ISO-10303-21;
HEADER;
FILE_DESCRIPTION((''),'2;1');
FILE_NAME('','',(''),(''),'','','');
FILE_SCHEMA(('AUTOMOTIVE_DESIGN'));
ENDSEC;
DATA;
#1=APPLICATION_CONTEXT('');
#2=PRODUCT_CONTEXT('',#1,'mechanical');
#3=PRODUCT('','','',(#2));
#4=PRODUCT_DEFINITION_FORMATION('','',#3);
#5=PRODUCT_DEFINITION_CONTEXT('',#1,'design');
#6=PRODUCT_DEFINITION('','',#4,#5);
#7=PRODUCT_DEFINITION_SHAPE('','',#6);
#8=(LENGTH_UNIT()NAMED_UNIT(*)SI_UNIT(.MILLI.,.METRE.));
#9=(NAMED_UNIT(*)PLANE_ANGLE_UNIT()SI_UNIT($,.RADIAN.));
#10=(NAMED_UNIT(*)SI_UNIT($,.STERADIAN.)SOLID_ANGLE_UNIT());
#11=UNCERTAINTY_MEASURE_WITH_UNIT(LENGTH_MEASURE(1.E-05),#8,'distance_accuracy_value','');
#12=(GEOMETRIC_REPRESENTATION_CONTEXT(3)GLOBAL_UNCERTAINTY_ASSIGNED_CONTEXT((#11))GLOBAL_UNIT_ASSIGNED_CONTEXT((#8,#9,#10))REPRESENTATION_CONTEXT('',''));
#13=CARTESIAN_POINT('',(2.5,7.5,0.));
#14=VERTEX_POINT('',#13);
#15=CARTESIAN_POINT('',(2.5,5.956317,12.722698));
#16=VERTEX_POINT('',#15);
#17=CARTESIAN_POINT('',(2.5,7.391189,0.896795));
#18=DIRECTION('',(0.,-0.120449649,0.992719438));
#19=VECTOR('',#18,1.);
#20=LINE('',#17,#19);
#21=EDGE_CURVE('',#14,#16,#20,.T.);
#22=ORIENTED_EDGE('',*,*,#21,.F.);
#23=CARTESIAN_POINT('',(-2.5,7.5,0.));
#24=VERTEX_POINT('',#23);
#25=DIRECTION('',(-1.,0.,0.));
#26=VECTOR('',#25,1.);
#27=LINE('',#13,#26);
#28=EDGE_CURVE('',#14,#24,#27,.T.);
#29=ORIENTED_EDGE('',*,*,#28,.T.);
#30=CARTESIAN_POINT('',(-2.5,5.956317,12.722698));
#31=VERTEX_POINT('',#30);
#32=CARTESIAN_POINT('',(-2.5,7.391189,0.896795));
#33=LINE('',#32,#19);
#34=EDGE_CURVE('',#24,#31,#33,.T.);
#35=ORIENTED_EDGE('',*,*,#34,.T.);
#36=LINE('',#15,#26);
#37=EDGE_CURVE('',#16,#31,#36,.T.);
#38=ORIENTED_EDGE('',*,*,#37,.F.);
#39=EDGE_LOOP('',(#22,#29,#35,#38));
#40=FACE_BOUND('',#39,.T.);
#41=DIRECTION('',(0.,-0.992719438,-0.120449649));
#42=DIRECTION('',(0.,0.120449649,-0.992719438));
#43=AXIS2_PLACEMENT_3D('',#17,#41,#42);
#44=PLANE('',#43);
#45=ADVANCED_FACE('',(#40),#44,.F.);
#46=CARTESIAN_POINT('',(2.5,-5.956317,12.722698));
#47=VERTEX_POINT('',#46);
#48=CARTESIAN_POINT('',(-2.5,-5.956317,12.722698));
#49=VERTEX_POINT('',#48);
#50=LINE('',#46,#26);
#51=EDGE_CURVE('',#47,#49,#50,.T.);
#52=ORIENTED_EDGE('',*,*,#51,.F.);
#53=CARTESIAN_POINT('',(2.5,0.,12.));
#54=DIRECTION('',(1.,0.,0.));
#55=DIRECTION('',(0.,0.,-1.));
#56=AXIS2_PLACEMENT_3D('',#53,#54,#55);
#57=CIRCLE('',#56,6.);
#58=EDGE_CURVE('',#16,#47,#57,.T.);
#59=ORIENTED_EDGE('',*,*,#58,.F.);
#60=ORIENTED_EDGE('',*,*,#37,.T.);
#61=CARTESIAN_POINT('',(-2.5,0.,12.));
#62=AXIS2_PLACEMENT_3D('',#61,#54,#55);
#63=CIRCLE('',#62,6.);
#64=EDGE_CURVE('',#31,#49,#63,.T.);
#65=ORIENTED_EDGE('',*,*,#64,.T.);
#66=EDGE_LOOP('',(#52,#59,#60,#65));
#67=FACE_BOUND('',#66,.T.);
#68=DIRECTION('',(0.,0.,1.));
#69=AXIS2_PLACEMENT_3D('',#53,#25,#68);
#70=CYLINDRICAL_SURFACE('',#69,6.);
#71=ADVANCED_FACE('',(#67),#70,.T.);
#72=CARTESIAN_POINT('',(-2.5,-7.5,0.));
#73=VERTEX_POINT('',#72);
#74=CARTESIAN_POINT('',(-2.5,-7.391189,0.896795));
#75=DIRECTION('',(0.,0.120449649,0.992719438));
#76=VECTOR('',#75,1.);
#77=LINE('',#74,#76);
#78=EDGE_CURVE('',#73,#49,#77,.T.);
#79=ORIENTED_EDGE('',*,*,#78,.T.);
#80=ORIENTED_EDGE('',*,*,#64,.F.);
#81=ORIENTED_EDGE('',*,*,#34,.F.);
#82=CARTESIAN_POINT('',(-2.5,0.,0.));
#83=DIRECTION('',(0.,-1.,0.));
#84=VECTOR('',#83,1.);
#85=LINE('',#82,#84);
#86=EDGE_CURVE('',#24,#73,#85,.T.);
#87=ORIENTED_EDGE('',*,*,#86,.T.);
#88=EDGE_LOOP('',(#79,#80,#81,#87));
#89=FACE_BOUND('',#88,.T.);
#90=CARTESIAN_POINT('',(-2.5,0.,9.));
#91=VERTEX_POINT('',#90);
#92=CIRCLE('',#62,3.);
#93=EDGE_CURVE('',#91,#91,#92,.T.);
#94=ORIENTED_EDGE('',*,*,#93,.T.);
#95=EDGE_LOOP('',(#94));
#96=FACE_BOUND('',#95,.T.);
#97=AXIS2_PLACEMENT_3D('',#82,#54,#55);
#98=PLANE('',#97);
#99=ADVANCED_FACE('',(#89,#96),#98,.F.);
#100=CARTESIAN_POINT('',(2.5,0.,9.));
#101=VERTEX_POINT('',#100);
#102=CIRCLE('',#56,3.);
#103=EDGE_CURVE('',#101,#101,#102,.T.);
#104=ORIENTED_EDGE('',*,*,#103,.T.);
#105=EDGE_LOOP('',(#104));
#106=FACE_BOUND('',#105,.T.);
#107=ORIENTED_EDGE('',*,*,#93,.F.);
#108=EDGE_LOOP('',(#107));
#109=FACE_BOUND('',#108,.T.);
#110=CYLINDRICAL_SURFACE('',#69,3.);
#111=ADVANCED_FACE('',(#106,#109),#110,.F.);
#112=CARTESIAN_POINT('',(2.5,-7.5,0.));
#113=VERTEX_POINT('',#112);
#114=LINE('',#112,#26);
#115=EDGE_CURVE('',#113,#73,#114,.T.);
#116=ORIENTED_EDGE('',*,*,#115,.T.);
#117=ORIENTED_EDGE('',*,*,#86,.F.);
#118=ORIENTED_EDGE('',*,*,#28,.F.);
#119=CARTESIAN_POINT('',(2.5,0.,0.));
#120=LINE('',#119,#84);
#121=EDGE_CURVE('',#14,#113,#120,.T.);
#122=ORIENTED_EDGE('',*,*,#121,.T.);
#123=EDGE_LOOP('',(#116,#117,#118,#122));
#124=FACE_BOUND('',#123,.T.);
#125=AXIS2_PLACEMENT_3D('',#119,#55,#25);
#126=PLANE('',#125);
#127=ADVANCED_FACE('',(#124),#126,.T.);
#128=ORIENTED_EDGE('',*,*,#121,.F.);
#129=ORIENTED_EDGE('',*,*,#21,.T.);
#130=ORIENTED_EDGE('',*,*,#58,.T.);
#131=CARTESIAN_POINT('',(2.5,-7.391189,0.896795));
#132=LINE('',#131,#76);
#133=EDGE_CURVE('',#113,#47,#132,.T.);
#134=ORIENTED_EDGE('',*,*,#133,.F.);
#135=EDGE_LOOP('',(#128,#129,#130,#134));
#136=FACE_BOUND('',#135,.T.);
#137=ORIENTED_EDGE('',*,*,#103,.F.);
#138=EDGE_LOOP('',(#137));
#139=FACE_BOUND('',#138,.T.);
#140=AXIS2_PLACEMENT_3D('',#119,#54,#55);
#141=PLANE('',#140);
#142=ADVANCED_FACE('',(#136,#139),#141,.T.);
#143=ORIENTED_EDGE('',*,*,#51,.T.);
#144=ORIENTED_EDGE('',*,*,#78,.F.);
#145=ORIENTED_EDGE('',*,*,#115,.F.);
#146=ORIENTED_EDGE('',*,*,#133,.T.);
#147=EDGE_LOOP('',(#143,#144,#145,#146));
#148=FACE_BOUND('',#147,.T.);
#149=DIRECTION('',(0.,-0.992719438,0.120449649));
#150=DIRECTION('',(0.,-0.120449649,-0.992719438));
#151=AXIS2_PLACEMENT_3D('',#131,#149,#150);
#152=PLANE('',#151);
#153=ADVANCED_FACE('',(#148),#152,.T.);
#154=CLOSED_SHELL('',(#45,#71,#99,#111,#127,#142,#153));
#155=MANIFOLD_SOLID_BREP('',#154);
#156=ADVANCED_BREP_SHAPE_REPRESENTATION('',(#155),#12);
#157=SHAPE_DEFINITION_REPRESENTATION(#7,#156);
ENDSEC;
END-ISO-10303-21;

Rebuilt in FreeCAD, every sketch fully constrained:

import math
import FreeCAD as App
import Part
import Sketcher
Q = App.Units.Quantity

doc = App.newDocument("Part")
body = doc.addObject("PartDesign::Body", "Body")

# Sketch on YZ plane
sketch1 = body.newObject("Sketcher::SketchObject", "Sketch")
sketch1.AttachmentSupport = (doc.getObject("YZ_Plane"), [""])
sketch1.MapMode = "FlatFace"
sketch1.addGeometry([
    Part.LineSegment(App.Vector(-7.5, 0, 0), App.Vector(7.5, 0, 0)),  # 0
    Part.LineSegment(App.Vector(7.5, 0, 0), App.Vector(6, 12.7, 0)),  # 1
    Part.ArcOfCircle(Part.Circle(App.Vector(0, 12, 0), App.Vector(0, 0, 1), 6), math.radians(7), math.radians(173)),  # 2
    Part.LineSegment(App.Vector(-6, 12.7, 0), App.Vector(-7.5, 0, 0)),  # 3
    Part.Circle(App.Vector(0, 12, 0), App.Vector(0, 0, 1), 3),  # 4
], False)
sketch1.addConstraint([
    Sketcher.Constraint("Coincident", 0, 2, 1, 1),
    Sketcher.Constraint("Tangent", 1, 2, 2, 1),
    Sketcher.Constraint("Tangent", 2, 2, 3, 1),
    Sketcher.Constraint("Coincident", 3, 2, 0, 1),
    Sketcher.Constraint("Horizontal", 0),
    Sketcher.Constraint("Coincident", 4, 3, 2, 3),
    Sketcher.Constraint("Symmetric", 0, 2, 3, 2, -1, 1),
    Sketcher.Constraint("PointOnObject", 2, 3, -2),
    Sketcher.Constraint("Diameter", 4, Q("6 mm")),
    Sketcher.Constraint("Radius", 2, Q("6 mm")),
    Sketcher.Constraint("DistanceX", 0, 1, 0, 2, Q("15 mm")),
    Sketcher.Constraint("DistanceY", -1, 1, 2, 3, Q("12 mm")),
])
pad1 = body.newObject("PartDesign::Pad", "Pad")
pad1.Profile = sketch1
pad1.Length = 5
pad1.Midplane = True

doc.recompute()
